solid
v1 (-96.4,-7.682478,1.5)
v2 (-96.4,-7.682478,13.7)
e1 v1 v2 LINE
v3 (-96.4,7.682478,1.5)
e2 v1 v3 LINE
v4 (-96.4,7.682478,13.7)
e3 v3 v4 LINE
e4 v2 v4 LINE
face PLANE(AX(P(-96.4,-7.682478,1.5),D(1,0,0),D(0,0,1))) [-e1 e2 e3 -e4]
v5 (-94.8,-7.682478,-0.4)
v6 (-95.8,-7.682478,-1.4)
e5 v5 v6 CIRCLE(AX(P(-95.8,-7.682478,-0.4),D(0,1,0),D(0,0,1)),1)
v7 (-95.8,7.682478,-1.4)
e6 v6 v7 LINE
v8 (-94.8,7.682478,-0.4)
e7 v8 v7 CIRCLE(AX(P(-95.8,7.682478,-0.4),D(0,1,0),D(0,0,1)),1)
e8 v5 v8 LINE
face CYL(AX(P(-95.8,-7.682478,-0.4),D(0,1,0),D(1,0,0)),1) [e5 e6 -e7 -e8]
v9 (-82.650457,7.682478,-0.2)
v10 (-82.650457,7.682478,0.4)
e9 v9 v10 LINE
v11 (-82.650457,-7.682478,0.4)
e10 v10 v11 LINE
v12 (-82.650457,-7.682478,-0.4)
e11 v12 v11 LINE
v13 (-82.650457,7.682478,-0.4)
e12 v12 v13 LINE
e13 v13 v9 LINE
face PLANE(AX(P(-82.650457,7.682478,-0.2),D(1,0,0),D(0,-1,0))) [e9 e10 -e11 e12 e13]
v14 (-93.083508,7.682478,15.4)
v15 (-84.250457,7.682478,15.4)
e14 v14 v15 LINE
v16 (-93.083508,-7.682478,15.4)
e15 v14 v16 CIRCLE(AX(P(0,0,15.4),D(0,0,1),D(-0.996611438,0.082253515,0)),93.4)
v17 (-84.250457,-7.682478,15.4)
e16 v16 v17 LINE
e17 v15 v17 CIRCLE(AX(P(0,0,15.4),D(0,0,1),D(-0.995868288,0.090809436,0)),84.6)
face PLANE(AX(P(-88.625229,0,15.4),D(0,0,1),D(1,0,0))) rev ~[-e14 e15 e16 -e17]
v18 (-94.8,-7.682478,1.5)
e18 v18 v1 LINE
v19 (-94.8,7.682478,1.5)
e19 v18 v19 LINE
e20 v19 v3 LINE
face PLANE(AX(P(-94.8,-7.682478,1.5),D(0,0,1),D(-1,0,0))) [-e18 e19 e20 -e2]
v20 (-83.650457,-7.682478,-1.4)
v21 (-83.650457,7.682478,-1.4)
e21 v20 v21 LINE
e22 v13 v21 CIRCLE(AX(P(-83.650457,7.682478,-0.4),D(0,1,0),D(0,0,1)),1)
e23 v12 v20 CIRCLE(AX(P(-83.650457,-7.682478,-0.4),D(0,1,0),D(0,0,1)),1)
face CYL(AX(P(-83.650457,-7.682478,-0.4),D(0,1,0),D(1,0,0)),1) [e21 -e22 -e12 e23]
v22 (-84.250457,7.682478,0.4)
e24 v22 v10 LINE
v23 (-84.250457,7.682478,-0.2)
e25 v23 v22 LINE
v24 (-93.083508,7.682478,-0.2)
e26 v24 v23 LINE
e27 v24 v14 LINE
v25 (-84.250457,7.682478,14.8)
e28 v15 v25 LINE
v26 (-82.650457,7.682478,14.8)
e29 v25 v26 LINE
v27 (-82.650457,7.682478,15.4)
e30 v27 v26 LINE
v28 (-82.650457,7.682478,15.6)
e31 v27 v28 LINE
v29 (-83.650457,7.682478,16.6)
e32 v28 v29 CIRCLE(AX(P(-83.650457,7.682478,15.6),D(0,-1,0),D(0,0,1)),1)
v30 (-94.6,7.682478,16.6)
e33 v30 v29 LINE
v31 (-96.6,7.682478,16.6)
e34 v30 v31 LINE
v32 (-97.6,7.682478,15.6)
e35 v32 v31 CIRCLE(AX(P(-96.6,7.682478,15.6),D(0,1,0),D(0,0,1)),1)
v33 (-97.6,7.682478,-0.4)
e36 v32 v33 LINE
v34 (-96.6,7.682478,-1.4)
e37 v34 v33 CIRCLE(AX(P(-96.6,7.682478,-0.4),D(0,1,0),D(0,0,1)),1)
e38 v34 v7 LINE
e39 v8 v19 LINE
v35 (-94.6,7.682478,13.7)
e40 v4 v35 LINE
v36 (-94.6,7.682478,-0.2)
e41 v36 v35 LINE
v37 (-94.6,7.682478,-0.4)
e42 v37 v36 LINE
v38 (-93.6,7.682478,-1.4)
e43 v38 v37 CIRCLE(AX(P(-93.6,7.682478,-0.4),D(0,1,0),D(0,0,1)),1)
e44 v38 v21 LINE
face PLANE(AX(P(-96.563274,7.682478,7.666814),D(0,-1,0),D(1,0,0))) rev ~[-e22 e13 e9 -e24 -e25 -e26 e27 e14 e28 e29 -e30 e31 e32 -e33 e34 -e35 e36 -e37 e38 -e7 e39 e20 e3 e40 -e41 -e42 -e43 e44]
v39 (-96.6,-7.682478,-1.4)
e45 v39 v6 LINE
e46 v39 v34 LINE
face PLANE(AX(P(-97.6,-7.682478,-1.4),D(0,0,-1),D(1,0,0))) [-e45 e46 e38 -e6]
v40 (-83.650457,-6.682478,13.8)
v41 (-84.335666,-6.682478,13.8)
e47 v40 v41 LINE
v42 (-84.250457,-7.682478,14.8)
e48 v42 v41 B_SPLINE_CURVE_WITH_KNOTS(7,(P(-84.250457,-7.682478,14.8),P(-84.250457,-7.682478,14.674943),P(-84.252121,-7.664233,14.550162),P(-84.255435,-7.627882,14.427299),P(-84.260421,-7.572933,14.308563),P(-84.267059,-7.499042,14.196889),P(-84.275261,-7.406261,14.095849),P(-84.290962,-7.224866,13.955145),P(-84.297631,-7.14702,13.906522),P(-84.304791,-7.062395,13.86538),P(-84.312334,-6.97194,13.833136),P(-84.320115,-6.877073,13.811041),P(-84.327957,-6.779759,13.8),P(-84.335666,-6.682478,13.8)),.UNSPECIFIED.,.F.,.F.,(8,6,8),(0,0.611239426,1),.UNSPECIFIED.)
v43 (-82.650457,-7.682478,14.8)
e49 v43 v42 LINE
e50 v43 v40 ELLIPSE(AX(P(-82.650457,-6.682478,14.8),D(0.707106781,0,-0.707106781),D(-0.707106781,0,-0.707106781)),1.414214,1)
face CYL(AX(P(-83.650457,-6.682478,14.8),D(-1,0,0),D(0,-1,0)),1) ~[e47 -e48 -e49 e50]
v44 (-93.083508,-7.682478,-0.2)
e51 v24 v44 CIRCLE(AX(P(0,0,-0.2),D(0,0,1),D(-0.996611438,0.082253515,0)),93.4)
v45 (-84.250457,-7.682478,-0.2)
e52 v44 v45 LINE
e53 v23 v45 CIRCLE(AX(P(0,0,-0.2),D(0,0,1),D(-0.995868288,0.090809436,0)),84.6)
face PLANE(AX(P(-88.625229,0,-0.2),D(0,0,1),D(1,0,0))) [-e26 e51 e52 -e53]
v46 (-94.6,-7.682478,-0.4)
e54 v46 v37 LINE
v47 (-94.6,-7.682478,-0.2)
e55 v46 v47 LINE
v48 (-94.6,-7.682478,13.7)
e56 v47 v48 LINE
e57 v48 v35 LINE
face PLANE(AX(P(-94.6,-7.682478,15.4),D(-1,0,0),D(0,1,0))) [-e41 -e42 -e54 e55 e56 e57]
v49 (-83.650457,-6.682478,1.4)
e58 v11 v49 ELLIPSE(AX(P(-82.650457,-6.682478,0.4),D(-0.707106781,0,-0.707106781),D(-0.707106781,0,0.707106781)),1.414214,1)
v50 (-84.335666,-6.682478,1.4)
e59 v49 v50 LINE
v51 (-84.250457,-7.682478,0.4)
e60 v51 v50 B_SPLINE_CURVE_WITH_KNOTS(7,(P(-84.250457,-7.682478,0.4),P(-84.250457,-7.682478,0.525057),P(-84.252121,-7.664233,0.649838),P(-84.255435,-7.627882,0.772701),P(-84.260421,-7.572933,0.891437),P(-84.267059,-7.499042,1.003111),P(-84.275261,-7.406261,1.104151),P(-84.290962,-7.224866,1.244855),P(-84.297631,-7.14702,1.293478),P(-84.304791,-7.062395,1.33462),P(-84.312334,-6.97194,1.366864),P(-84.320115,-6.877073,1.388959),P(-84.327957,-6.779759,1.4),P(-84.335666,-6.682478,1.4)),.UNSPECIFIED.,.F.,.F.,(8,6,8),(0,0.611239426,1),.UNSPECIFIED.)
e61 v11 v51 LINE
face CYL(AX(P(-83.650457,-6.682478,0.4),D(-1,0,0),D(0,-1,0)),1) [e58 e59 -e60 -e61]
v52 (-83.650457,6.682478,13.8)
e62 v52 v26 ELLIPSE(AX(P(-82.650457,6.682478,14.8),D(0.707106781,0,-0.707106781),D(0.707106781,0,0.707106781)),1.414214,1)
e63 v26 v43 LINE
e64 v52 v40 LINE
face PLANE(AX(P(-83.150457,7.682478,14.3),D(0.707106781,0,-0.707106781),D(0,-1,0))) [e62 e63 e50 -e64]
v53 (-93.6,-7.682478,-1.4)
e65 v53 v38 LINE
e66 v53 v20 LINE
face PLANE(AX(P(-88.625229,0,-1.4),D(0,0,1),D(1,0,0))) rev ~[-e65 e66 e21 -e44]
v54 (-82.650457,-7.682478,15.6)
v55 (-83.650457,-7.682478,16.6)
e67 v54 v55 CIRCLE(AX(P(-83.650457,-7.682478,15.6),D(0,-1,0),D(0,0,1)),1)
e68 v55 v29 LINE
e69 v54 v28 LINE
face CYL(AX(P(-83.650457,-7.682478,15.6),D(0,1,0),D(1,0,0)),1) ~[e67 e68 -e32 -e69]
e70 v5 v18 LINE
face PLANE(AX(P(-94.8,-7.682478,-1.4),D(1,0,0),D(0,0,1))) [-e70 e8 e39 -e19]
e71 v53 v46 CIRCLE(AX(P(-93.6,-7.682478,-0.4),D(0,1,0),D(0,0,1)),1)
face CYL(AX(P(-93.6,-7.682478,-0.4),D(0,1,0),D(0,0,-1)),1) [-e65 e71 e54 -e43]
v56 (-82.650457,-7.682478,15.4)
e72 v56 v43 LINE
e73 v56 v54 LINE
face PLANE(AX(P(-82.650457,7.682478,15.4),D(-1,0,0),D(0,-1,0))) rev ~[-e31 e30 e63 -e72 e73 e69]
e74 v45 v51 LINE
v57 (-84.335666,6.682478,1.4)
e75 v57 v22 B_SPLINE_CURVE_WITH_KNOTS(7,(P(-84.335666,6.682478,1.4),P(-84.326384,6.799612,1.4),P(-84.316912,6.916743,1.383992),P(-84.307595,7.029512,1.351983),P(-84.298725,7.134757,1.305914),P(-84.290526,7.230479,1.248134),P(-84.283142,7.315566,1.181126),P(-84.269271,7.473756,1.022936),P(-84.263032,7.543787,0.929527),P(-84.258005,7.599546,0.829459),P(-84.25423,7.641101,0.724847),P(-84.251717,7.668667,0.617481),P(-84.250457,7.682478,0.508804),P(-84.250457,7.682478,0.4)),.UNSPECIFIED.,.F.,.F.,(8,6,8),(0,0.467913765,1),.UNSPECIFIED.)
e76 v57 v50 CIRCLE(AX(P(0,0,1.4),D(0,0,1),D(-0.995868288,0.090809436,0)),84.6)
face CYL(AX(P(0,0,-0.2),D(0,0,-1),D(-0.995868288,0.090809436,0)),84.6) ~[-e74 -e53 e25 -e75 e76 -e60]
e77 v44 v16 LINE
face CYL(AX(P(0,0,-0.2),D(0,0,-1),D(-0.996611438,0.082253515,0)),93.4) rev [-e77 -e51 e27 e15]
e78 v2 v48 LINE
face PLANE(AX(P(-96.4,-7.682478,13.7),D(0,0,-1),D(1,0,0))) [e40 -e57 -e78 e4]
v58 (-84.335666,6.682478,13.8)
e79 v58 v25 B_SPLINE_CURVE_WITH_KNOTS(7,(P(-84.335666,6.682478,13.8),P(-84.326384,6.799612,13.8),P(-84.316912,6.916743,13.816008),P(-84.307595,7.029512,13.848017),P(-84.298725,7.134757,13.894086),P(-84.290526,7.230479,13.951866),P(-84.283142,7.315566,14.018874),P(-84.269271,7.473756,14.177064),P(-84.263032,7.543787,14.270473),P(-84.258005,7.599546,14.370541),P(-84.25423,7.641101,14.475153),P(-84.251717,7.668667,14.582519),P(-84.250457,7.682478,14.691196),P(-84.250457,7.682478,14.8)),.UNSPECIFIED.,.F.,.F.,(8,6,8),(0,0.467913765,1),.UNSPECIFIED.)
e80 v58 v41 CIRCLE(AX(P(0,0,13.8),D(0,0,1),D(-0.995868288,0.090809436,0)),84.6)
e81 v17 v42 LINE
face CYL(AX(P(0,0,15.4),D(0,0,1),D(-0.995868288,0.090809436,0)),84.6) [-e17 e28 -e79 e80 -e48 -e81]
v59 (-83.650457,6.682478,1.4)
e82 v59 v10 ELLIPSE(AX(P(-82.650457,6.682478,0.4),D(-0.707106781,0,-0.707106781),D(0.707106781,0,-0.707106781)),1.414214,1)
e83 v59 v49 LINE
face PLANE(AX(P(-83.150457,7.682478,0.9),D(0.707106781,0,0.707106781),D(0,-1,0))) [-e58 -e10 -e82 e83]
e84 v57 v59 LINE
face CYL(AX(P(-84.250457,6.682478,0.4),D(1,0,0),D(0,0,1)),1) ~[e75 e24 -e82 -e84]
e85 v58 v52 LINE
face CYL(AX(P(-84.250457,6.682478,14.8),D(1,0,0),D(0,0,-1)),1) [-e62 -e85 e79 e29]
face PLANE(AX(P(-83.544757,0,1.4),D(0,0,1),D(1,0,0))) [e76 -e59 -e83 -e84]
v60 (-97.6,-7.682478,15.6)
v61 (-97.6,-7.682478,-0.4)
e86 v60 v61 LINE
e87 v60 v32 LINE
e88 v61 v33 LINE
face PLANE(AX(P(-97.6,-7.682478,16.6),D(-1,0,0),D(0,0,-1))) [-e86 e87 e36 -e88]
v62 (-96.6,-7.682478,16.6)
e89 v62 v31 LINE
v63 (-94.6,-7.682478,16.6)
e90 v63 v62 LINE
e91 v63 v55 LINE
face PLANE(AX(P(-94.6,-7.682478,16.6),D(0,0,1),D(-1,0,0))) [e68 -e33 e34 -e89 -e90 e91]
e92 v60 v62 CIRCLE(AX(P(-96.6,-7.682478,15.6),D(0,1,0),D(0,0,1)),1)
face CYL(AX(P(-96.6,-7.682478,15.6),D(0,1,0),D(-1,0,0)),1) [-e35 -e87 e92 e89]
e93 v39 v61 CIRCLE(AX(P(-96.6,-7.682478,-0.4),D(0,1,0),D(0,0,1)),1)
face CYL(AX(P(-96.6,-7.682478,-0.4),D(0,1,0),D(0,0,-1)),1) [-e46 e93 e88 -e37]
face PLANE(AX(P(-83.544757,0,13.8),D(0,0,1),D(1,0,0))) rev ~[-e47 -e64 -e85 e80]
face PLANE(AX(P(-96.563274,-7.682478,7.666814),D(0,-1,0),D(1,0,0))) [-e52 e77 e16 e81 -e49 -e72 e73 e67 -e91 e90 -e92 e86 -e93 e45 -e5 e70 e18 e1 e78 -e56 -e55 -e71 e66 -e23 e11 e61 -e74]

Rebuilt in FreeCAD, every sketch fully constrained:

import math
import FreeCAD as App
import Part
import Sketcher
from FreeCAD import Vector
Q = App.Units.Quantity


def edges_at(feature, points):
    """Names of the edges that pass closest to the given points."""
    edges = feature.Shape.Edges
    near = lambda p: min(range(len(edges)), key=lambda i: edges[i].distToShape(Part.Vertex(*p))[0])
    return sorted({f"Edge{near(p) + 1}" for p in points})


def add_polygon(sketch, points):
    """Adds a closed chain of lines whose ends are joined by coincident constraints."""
    first, n = sketch.GeometryCount, len(points)
    for a, b in zip(points, points[1:] + points[:1]):
        sketch.addGeometry(Part.LineSegment(App.Vector(*a, 0), App.Vector(*b, 0)), False)
    for i in range(n):
        sketch.addConstraint(Sketcher.Constraint("Coincident", first + i, 2, first + (i + 1) % n, 1))

doc = App.newDocument("Part")
body = doc.addObject("PartDesign::Body", "Body")

# Sketch on XY plane
sketch1 = doc.addObject("Sketcher::SketchObject", "Sketch")
body.addObject(sketch1)
sketch1.AttachmentSupport = (doc.XY_Plane, [""])
sketch1.MapMode = "FlatFace"
add_polygon(sketch1, [(-95, 8), (-95, -8), (-83, -8), (-83, 8)])  # lines 0-3
sketch1.addConstraint(Sketcher.Constraint("Vertical", 0))
sketch1.addConstraint(Sketcher.Constraint("Horizontal", 1))
sketch1.addConstraint(Sketcher.Constraint("Vertical", 2))
sketch1.addConstraint(Sketcher.Constraint("Horizontal", 3))
sketch1.addConstraint(Sketcher.Constraint("DistanceX", 0, 2, -1, 1, Q("94.6 mm")))
sketch1.addConstraint(Sketcher.Constraint("DistanceX", 1, 1, 1, 2, Q("11.949543 mm")))
sketch1.addConstraint(Sketcher.Constraint("DistanceY", 0, 2, 0, 1, Q("15.364957 mm")))
sketch1.addConstraint(Sketcher.Constraint("DistanceY", 0, 2, -1, 1, Q("7.682478 mm")))
pad1 = doc.addObject("PartDesign::Pad", "Pad")
body.addObject(pad1)
pad1.Profile = sketch1
pad1.Length = 1.2

# Sketch on XY plane
sketch2 = doc.addObject("Sketcher::SketchObject", "Sketch001")
body.addObject(sketch2)
sketch2.AttachmentSupport = (doc.XY_Plane, [""])
sketch2.MapMode = "FlatFace"
sketch2.AttachmentOffset = App.Placement(Vector(0, 0, 1.2), App.Rotation())
sketch2.addGeometry(Part.ArcOfCircle(Part.Circle(Vector(0, 0, 0), Vector(0, 0, 1), 93.4), math.radians(175.28), math.radians(184.72)), False)
sketch2.addGeometry(Part.LineSegment(Vector(-93.1, 7.7, 0), Vector(-94.6, 7.7, 0)), False)
sketch2.addGeometry(Part.LineSegment(Vector(-94.6, 7.7, 0), Vector(-94.6, -7.7, 0)), False)
sketch2.addGeometry(Part.LineSegment(Vector(-94.6, -7.7, 0), Vector(-93.1, -7.7, 0)), False)
sketch2.addConstraint(Sketcher.Constraint("Coincident", 0, 1, 1, 1))
sketch2.addConstraint(Sketcher.Constraint("Coincident", 1, 2, 2, 1))
sketch2.addConstraint(Sketcher.Constraint("Coincident", 2, 2, 3, 1))
sketch2.addConstraint(Sketcher.Constraint("Coincident", 3, 2, 0, 2))
sketch2.addConstraint(Sketcher.Constraint("Horizontal", 1))
sketch2.addConstraint(Sketcher.Constraint("Vertical", 2))
sketch2.addConstraint(Sketcher.Constraint("Horizontal", 3))
sketch2.addConstraint(Sketcher.Constraint("Coincident", 0, 3, -1, 1))
sketch2.addConstraint(Sketcher.Constraint("Vertical", 0, 1, 3, 2))
sketch2.addConstraint(Sketcher.Constraint("Radius", 0, Q("93.4 mm")))
sketch2.addConstraint(Sketcher.Constraint("DistanceX", 1, 2, -1, 1, Q("94.6 mm")))
sketch2.addConstraint(Sketcher.Constraint("DistanceX", 1, 2, 1, 1, Q("1.516492 mm")))
pad2 = doc.addObject("PartDesign::Pad", "Pad001")
body.addObject(pad2)
pad2.Profile = sketch2
pad2.Length = 15.6

# Sketch on XY plane
sketch3 = doc.addObject("Sketcher::SketchObject", "Sketch002")
body.addObject(sketch3)
sketch3.AttachmentSupport = (doc.XY_Plane, [""])
sketch3.MapMode = "FlatFace"
sketch3.AttachmentOffset = App.Placement(Vector(0, 0, 16.8), App.Rotation())
add_polygon(sketch3, [(-95, 8), (-95, -8), (-83, -8), (-83, 8)])  # lines 0-3
sketch3.addConstraint(Sketcher.Constraint("Vertical", 0))
sketch3.addConstraint(Sketcher.Constraint("Horizontal", 1))
sketch3.addConstraint(Sketcher.Constraint("Vertical", 2))
sketch3.addConstraint(Sketcher.Constraint("Horizontal", 3))
sketch3.addConstraint(Sketcher.Constraint("DistanceX", 0, 2, -1, 1, Q("94.6 mm")))
sketch3.addConstraint(Sketcher.Constraint("DistanceX", 1, 1, 1, 2, Q("11.949543 mm")))
sketch3.addConstraint(Sketcher.Constraint("DistanceY", 0, 2, 0, 1, Q("15.364957 mm")))
sketch3.addConstraint(Sketcher.Constraint("DistanceY", 0, 2, -1, 1, Q("7.682478 mm")))
pad3 = doc.addObject("PartDesign::Pad", "Pad002")
body.addObject(pad3)
pad3.Profile = sketch3
pad3.Length = 1.2

# Sketch on XY plane
sketch4 = doc.addObject("Sketcher::SketchObject", "Sketch003")
body.addObject(sketch4)
sketch4.AttachmentSupport = (doc.XY_Plane, [""])
sketch4.MapMode = "FlatFace"
sketch4.AttachmentOffset = App.Placement(Vector(0, 0, 1.2), App.Rotation())
sketch4.addGeometry(Part.ArcOfCircle(Part.Circle(Vector(0, 0, 0), Vector(0, 0, 1), 84.6), math.radians(174.79), math.radians(185.21)), False)
sketch4.addGeometry(Part.LineSegment(Vector(-84.3, -7.7, 0), Vector(-82.7, -7.7, 0)), False)
sketch4.addGeometry(Part.LineSegment(Vector(-82.7, -7.7, 0), Vector(-82.7, 7.7, 0)), False)
sketch4.addGeometry(Part.LineSegment(Vector(-82.7, 7.7, 0), Vector(-84.3, 7.7, 0)), False)
sketch4.addConstraint(Sketcher.Constraint("Coincident", 0, 2, 1, 1))
sketch4.addConstraint(Sketcher.Constraint("Coincident", 1, 2, 2, 1))
sketch4.addConstraint(Sketcher.Constraint("Coincident", 2, 2, 3, 1))
sketch4.addConstraint(Sketcher.Constraint("Coincident", 3, 2, 0, 1))
sketch4.addConstraint(Sketcher.Constraint("Horizontal", 1))
sketch4.addConstraint(Sketcher.Constraint("Vertical", 2))
sketch4.addConstraint(Sketcher.Constraint("Horizontal", 3))
sketch4.addConstraint(Sketcher.Constraint("Coincident", 0, 3, -1, 1))
sketch4.addConstraint(Sketcher.Constraint("Vertical", 0, 2, 3, 2))
sketch4.addConstraint(Sketcher.Constraint("Radius", 0, Q("84.6 mm")))
sketch4.addConstraint(Sketcher.Constraint("DistanceX", 1, 1, 1, 2, Q("1.6 mm")))
sketch4.addConstraint(Sketcher.Constraint("DistanceY", 2, 1, 2, 2, Q("15.364957 mm")))
pad4 = doc.addObject("PartDesign::Pad", "Pad003")
body.addObject(pad4)
pad4.Profile = sketch4
pad4.Length = 1.6

# Sketch on XY plane
sketch5 = doc.addObject("Sketcher::SketchObject", "Sketch004")
body.addObject(sketch5)
sketch5.AttachmentSupport = (doc.XY_Plane, [""])
sketch5.MapMode = "FlatFace"
sketch5.AttachmentOffset = App.Placement(Vector(0, 0, 16.8), App.Rotation())
sketch5.addGeometry(Part.ArcOfCircle(Part.Circle(Vector(0, 0, 0), Vector(0, 0, 1), 84.6), math.radians(174.79), math.radians(185.21)), False)
sketch5.addGeometry(Part.LineSegment(Vector(-84.3, -7.7, 0), Vector(-82.7, -7.7, 0)), False)
sketch5.addGeometry(Part.LineSegment(Vector(-82.7, -7.7, 0), Vector(-82.7, 7.7, 0)), False)
sketch5.addGeometry(Part.LineSegment(Vector(-82.7, 7.7, 0), Vector(-84.3, 7.7, 0)), False)
sketch5.addConstraint(Sketcher.Constraint("Coincident", 0, 2, 1, 1))
sketch5.addConstraint(Sketcher.Constraint("Coincident", 1, 2, 2, 1))
sketch5.addConstraint(Sketcher.Constraint("Coincident", 2, 2, 3, 1))
sketch5.addConstraint(Sketcher.Constraint("Coincident", 3, 2, 0, 1))
sketch5.addConstraint(Sketcher.Constraint("Horizontal", 1))
sketch5.addConstraint(Sketcher.Constraint("Vertical", 2))
sketch5.addConstraint(Sketcher.Constraint("Horizontal", 3))
sketch5.addConstraint(Sketcher.Constraint("Coincident", 0, 3, -1, 1))
sketch5.addConstraint(Sketcher.Constraint("Vertical", 0, 2, 3, 2))
sketch5.addConstraint(Sketcher.Constraint("Radius", 0, Q("84.6 mm")))
sketch5.addConstraint(Sketcher.Constraint("DistanceX", 1, 1, 1, 2, Q("1.6 mm")))
sketch5.addConstraint(Sketcher.Constraint("DistanceY", 2, 1, 2, 2, Q("15.364957 mm")))
pad5 = doc.addObject("PartDesign::Pad", "Pad004")
body.addObject(pad5)
pad5.Profile = sketch5
pad5.Length = 1.6
pad5.Reversed = True

# Sketch on XZ plane
sketch6 = doc.addObject("Sketcher::SketchObject", "Sketch005")
body.addObject(sketch6)
sketch6.AttachmentSupport = (doc.XZ_Plane, [""])
sketch6.MapMode = "FlatFace"
sketch6.AttachmentOffset = App.Placement(Vector(0, 0, 7.682478), App.Rotation())
add_polygon(sketch6, [(-94.6, 18), (-94.6, 15.1), (-96.4, 15.1), (-96.4, 2.9), (-94.8, 2.9), (-94.8, 0), (-97.6, 0), (-97.6, 18)])  # lines 0-7
sketch6.addConstraint(Sketcher.Constraint("Vertical", 0))
sketch6.addConstraint(Sketcher.Constraint("Horizontal", 1))
sketch6.addConstraint(Sketcher.Constraint("Vertical", 2))
sketch6.addConstraint(Sketcher.Constraint("Horizontal", 3))
sketch6.addConstraint(Sketcher.Constraint("Vertical", 4))
sketch6.addConstraint(Sketcher.Constraint("Horizontal", 5))
sketch6.addConstraint(Sketcher.Constraint("Vertical", 6))
sketch6.addConstraint(Sketcher.Constraint("Horizontal", 7))
sketch6.addConstraint(Sketcher.Constraint("PointOnObject", 4, 2, -1))
sketch6.addConstraint(Sketcher.Constraint("Equal", 0, 4))
sketch6.addConstraint(Sketcher.Constraint("DistanceX", 7, 1, 7, 2, Q("3 mm")))
sketch6.addConstraint(Sketcher.Constraint("DistanceY", 6, 1, 6, 2, Q("18 mm")))
sketch6.addConstraint(Sketcher.Constraint("DistanceX", 1, 2, 1, 1, Q("1.8 mm")))
sketch6.addConstraint(Sketcher.Constraint("DistanceX", 3, 1, 3, 2, Q("1.6 mm")))
sketch6.addConstraint(Sketcher.Constraint("DistanceY", 0, 2, 0, 1, Q("2.9 mm")))
sketch6.addConstraint(Sketcher.Constraint("DistanceX", 0, 2, -1, 1, Q("94.6 mm")))
pad6 = doc.addObject("PartDesign::Pad", "Pad005")
body.addObject(pad6)
pad6.Profile = sketch6
pad6.Length = 15.364957
pad6.Reversed = True
doc.recompute()

chamfer = doc.addObject("PartDesign::Chamfer", "Chamfer")
body.addObject(chamfer)
chamfer.Base = (pad6, edges_at(pad6, [(-82.65, 0, 15.2), (-82.65, 0, 2.8)]))
chamfer.Size = 1
doc.recompute()

fillet = doc.addObject("PartDesign::Fillet", "Fillet")
body.addObject(fillet)
fillet.Base = (chamfer, edges_at(chamfer, [
    (-97.6, 0, 0),
    (-97.6, 0, 18),
    (-94.8, 0, 0),
    (-94.6, 0, 0),
    (-82.65, 0, 0),
    (-83.95, 7.682, 2.8),
    (-83.95, 7.682, 15.2),
    (-83.95, -7.682, 2.8),
    (-83.95, -7.682, 15.2),
    (-82.65, 0, 18),
]))
fillet.Radius = 1
body2 = doc.addObject("PartDesign::Body", "Body001")
doc.recompute()

body.Placement = App.Placement(Vector(0, 0, -1.4), App.Rotation(Vector(0, 0, 1), 0))
boolean = doc.addObject("PartDesign::Boolean", "Boolean")
body2.addObject(boolean)
boolean.Type = "Fuse"
boolean.addObjects([body])

doc.recompute()
